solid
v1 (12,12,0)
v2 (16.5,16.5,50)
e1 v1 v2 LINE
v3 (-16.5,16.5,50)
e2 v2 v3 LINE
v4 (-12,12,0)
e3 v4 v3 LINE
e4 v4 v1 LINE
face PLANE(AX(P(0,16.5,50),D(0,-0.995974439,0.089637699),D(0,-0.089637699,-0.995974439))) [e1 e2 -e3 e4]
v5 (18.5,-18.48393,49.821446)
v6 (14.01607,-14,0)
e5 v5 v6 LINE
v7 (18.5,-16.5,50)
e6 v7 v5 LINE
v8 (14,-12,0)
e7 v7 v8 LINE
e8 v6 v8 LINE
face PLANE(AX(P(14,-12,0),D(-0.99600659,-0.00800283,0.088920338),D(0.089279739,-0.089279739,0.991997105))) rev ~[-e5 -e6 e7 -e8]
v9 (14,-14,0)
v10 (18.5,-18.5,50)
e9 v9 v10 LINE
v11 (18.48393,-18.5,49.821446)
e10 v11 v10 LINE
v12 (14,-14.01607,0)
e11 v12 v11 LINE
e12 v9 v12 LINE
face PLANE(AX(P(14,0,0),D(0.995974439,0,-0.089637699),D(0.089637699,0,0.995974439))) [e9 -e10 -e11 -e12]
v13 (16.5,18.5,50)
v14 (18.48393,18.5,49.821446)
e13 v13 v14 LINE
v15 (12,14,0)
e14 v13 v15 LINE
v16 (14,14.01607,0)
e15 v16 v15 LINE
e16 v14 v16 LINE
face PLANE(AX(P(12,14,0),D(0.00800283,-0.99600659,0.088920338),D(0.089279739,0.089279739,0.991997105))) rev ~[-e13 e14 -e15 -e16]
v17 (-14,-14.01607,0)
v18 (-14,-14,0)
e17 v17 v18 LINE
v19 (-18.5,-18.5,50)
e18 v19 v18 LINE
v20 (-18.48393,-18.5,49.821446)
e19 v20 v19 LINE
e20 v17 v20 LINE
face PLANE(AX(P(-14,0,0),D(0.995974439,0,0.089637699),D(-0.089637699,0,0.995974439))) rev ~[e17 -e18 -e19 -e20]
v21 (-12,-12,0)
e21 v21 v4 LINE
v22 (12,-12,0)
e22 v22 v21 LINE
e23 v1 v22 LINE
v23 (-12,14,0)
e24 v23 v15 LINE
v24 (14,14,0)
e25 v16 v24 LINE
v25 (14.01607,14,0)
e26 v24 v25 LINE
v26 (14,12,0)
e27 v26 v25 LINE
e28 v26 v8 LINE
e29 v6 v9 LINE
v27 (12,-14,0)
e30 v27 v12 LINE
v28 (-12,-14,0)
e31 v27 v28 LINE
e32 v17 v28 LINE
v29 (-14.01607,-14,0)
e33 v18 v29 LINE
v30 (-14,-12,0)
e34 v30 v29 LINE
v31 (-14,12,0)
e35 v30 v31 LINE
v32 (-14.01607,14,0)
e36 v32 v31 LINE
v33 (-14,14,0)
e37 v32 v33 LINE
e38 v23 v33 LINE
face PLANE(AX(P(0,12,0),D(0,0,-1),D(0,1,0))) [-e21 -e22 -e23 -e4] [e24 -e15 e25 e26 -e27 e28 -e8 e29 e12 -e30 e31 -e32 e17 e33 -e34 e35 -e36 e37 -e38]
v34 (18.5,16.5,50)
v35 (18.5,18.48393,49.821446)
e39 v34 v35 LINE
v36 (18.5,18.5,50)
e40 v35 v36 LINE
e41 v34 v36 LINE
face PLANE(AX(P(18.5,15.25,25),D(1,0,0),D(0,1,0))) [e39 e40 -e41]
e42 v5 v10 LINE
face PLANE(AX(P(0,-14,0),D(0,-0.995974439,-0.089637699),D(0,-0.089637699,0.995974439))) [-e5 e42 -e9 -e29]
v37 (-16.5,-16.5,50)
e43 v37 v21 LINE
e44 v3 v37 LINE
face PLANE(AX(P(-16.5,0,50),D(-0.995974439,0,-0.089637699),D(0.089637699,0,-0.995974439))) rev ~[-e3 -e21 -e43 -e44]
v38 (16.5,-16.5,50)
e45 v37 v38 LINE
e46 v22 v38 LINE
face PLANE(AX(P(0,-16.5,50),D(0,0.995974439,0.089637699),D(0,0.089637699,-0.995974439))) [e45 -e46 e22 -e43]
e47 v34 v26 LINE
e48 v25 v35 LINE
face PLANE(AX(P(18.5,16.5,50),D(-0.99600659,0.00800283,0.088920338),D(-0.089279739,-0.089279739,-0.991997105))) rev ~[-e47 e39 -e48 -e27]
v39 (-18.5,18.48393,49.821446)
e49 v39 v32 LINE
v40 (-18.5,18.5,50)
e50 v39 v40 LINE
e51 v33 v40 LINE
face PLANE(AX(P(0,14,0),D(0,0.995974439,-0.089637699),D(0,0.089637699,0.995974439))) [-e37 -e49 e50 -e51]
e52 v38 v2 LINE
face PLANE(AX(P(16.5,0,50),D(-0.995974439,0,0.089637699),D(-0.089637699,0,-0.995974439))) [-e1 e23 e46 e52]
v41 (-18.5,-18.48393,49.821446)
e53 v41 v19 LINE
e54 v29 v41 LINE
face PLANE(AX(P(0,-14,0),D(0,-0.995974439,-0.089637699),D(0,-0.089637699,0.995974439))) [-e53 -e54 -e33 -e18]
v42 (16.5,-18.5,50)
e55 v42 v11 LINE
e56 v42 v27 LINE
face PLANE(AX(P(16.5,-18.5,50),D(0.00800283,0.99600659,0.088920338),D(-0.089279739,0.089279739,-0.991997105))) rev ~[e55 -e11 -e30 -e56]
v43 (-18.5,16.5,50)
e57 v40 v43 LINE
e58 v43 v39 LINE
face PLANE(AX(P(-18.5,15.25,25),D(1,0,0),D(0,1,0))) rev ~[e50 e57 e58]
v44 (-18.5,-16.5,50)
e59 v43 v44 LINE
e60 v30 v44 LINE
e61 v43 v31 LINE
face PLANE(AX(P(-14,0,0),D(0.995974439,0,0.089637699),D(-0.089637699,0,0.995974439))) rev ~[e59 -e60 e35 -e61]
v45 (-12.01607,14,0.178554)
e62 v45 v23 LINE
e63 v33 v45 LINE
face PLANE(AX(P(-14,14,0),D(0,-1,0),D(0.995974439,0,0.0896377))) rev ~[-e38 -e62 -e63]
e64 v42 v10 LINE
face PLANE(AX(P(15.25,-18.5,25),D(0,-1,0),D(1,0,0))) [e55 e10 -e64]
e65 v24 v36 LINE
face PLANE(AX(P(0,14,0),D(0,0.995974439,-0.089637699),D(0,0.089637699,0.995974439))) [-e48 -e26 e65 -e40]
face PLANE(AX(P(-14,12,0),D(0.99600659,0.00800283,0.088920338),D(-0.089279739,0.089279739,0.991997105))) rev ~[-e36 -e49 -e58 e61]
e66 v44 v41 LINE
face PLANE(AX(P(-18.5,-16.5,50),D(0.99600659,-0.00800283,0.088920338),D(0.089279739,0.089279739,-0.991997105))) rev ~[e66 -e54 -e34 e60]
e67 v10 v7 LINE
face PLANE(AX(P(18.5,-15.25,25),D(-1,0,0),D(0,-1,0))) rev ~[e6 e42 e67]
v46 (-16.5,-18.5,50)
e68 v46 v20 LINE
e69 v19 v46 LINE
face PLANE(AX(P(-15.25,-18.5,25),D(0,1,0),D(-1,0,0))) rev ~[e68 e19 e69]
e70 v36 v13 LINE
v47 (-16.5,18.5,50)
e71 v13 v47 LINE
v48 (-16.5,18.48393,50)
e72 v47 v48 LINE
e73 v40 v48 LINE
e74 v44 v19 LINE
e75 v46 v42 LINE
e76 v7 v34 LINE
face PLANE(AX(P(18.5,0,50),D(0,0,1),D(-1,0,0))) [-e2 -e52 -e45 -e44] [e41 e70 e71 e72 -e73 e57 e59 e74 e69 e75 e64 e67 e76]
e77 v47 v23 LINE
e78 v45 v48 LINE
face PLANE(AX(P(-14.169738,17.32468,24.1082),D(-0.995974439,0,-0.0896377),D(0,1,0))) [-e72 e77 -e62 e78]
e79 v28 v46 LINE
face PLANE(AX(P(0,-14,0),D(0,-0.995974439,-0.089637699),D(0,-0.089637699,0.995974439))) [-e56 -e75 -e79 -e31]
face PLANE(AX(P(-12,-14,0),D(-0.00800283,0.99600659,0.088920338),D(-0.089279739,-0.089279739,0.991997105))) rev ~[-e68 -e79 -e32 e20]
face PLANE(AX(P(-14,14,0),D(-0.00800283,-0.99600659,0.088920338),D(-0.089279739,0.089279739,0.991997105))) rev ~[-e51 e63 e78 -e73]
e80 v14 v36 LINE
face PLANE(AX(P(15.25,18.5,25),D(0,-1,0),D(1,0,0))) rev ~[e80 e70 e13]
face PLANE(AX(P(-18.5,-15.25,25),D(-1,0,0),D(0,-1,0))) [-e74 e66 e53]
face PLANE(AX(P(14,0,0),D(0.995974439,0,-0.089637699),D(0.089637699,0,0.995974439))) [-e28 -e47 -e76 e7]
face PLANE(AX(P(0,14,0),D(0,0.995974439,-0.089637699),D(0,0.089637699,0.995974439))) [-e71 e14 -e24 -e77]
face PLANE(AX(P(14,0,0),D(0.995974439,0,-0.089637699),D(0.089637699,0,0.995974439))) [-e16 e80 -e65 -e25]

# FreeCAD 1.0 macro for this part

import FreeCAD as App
import Part
import Sketcher

V = App.Vector

doc = App.newDocument("Part")
body = doc.addObject("PartDesign::Body", "Body")

sketch1 = body.newObject("Sketcher::SketchObject", "Sketch")
sketch1.AttachmentSupport = (doc.getObject("XZ_Plane"), [""])
sketch1.MapMode = "FlatFace"
sketch1.addGeometry(Part.LineSegment(V(-12, 0, 0), V(-16.5, 50, 0)), False)
sketch1.addGeometry(Part.LineSegment(V(-16.5, 50, 0), V(-18.5, 50, 0)), False)
sketch1.addGeometry(Part.LineSegment(V(-18.5, 50, 0), V(-14, 0, 0)), False)
sketch1.addGeometry(Part.LineSegment(V(-14, 0, 0), V(-12, 0, 0)), False)
sketch1.addConstraint(Sketcher.Constraint("Coincident", 0, 2, 1, 1))
sketch1.addConstraint(Sketcher.Constraint("Coincident", 1, 2, 2, 1))
sketch1.addConstraint(Sketcher.Constraint("Coincident", 2, 2, 3, 1))
sketch1.addConstraint(Sketcher.Constraint("Coincident", 3, 2, 0, 1))
sketch1.addConstraint(Sketcher.Constraint("Horizontal", 1))
sketch1.addConstraint(Sketcher.Constraint("Horizontal", 3))
sketch1.addConstraint(Sketcher.Constraint("PointOnObject", 2, 2, -1))
sketch1.addConstraint(Sketcher.Constraint("Parallel", 0, 2))
sketch1.addConstraint(Sketcher.Constraint("DistanceX", 1, 2, 1, 1, 2.0))
sketch1.addConstraint(Sketcher.Constraint("DistanceY", -1, 1, 0, 2, 50.0))
sketch1.addConstraint(Sketcher.Constraint("DistanceX", 2, 2, -1, 1, 14.0))
sketch1.addConstraint(Sketcher.Constraint("DistanceX", 0, 2, -1, 1, 16.5))
pad1 = body.newObject("PartDesign::Pad", "Pad")
pad1.Profile = sketch1
pad1.Type = "TwoLengths"
pad1.Length = 18.5
pad1.Length2 = 18.5
doc.recompute()

polarpattern = body.newObject("PartDesign::PolarPattern", "PolarPattern")
polarpattern.Originals = [pad1]
polarpattern.Axis = (doc.getObject("Z_Axis"), [""])
polarpattern.Angle = 360
polarpattern.Occurrences = 4
body.Tip = polarpattern

sketch2 = body.newObject("Sketcher::SketchObject", "Sketch001")
sketch2.Placement = App.Placement(V(-13.5, -17, 16.666667), App.Rotation(V(0, -1, 0), V(0.0896377, 0, -0.995974439), V(0.995974439, 0, 0.0896377), "ZXY"))
sketch2.addGeometry(Part.LineSegment(V(-3, 16.7, 0), V(1.5, -33.5, 0)), False)
sketch2.addGeometry(Part.LineSegment(V(1.5, -33.5, 0), V(1.5, 16.7, 0)), False)
sketch2.addGeometry(Part.LineSegment(V(1.5, 16.7, 0), V(-3, 16.7, 0)), False)
sketch2.addConstraint(Sketcher.Constraint("Coincident", 0, 2, 1, 1))
sketch2.addConstraint(Sketcher.Constraint("Coincident", 1, 2, 2, 1))
sketch2.addConstraint(Sketcher.Constraint("Coincident", 2, 2, 0, 1))
sketch2.addConstraint(Sketcher.Constraint("Vertical", 1))
sketch2.addConstraint(Sketcher.Constraint("Horizontal", 2))
sketch2.addConstraint(Sketcher.Constraint("DistanceX", 2, 2, 2, 1, 4.5))
sketch2.addConstraint(Sketcher.Constraint("DistanceX", 2, 2, -1, 1, 3.0))
sketch2.addConstraint(Sketcher.Constraint("DistanceY", 1, 1, 1, 2, 50.202092))
sketch2.addConstraint(Sketcher.Constraint("DistanceY", 0, 2, -1, 1, 33.468061))
pocket1 = body.newObject("PartDesign::Pocket", "Pocket")
pocket1.Profile = sketch2
pocket1.Type = "ThroughAll"

sketch3 = body.newObject("Sketcher::SketchObject", "Sketch002")
sketch3.Placement = App.Placement(V(-17, -13.5, 16.666667), App.Rotation(V(1, 0, 0), V(0, 0.0896377, -0.995974439), V(0, 0.995974439, 0.0896377), "ZXY"))
sketch3.addGeometry(Part.LineSegment(V(-1.5, 16.7, 0), V(-1.5, -33.5, 0)), False)
sketch3.addGeometry(Part.LineSegment(V(-1.5, -33.5, 0), V(3, 16.7, 0)), False)
sketch3.addGeometry(Part.LineSegment(V(3, 16.7, 0), V(-1.5, 16.7, 0)), False)
sketch3.addConstraint(Sketcher.Constraint("Coincident", 0, 2, 1, 1))
sketch3.addConstraint(Sketcher.Constraint("Coincident", 1, 2, 2, 1))
sketch3.addConstraint(Sketcher.Constraint("Coincident", 2, 2, 0, 1))
sketch3.addConstraint(Sketcher.Constraint("Vertical", 0))
sketch3.addConstraint(Sketcher.Constraint("Horizontal", 2))
sketch3.addConstraint(Sketcher.Constraint("DistanceX", 2, 2, 2, 1, 4.5))
sketch3.addConstraint(Sketcher.Constraint("DistanceX", -1, 1, 1, 2, 3.0))
sketch3.addConstraint(Sketcher.Constraint("DistanceY", 0, 2, 0, 1, 50.202092))
sketch3.addConstraint(Sketcher.Constraint("DistanceY", 0, 2, -1, 1, 33.468061))
pocket2 = body.newObject("PartDesign::Pocket", "Pocket001")
pocket2.Profile = sketch3
pocket2.Type = "ThroughAll"

sketch4 = body.newObject("Sketcher::SketchObject", "Sketch003")
sketch4.Placement = App.Placement(V(-15.5, 17, 16.666667), App.Rotation(V(0, 1, 0), V(0.0896377, 0, -0.995974439), V(-0.995974439, 0, -0.0896377), "ZXY"))
sketch4.addGeometry(Part.LineSegment(V(1.5, -33.5, 0), V(1.5, 16.7, 0)), False)
sketch4.addGeometry(Part.LineSegment(V(1.5, 16.7, 0), V(-3, 16.7, 0)), False)
sketch4.addGeometry(Part.LineSegment(V(-3, 16.7, 0), V(1.5, -33.5, 0)), False)
sketch4.addConstraint(Sketcher.Constraint("Coincident", 0, 2, 1, 1))
sketch4.addConstraint(Sketcher.Constraint("Coincident", 1, 2, 2, 1))
sketch4.addConstraint(Sketcher.Constraint("Coincident", 2, 2, 0, 1))
sketch4.addConstraint(Sketcher.Constraint("Vertical", 0))
sketch4.addConstraint(Sketcher.Constraint("Horizontal", 1))
sketch4.addConstraint(Sketcher.Constraint("DistanceX", 1, 2, 1, 1, 4.5))
sketch4.addConstraint(Sketcher.Constraint("DistanceX", 1, 2, -1, 1, 3.0))
sketch4.addConstraint(Sketcher.Constraint("DistanceY", 0, 1, 0, 2, 50.202092))
sketch4.addConstraint(Sketcher.Constraint("DistanceY", -1, 1, 0, 2, 16.734031))
pocket3 = body.newObject("PartDesign::Pocket", "Pocket002")
pocket3.Profile = sketch4
pocket3.Length = 1.991949

sketch5 = body.newObject("Sketcher::SketchObject", "Sketch004")
sketch5.Placement = App.Placement(V(-17, 13.5, 16.666667), App.Rotation(V(-1, 0, 0), V(0, -0.0896377, -0.995974439), V(0, -0.995974439, 0.0896377), "ZXY"))
sketch5.addGeometry(Part.LineSegment(V(-3, 16.7, 0), V(1.5, -33.5, 0)), False)
sketch5.addGeometry(Part.LineSegment(V(1.5, -33.5, 0), V(1.5, 16.7, 0)), False)
sketch5.addGeometry(Part.LineSegment(V(1.5, 16.7, 0), V(-3, 16.7, 0)), False)
sketch5.addConstraint(Sketcher.Constraint("Coincident", 0, 2, 1, 1))
sketch5.addConstraint(Sketcher.Constraint("Coincident", 1, 2, 2, 1))
sketch5.addConstraint(Sketcher.Constraint("Coincident", 2, 2, 0, 1))
sketch5.addConstraint(Sketcher.Constraint("Vertical", 1))
sketch5.addConstraint(Sketcher.Constraint("Horizontal", 2))
sketch5.addConstraint(Sketcher.Constraint("DistanceX", 2, 2, 2, 1, 4.5))
sketch5.addConstraint(Sketcher.Constraint("DistanceX", 2, 2, -1, 1, 3.0))
sketch5.addConstraint(Sketcher.Constraint("DistanceY", 1, 1, 1, 2, 50.202092))
sketch5.addConstraint(Sketcher.Constraint("DistanceY", 0, 2, -1, 1, 33.468061))
pocket4 = body.newObject("PartDesign::Pocket", "Pocket003")
pocket4.Profile = sketch5
pocket4.Length = 5

sketch6 = body.newObject("Sketcher::SketchObject", "Sketch005")
sketch6.Placement = App.Placement(V(13.5, -17, 16.666667), App.Rotation(V(0, 1, 0), V(-0.0896377, 0, -0.995974439), V(-0.995974439, 0, 0.0896377), "ZXY"))
sketch6.addGeometry(Part.LineSegment(V(-1.5, 16.7, 0), V(-1.5, -33.5, 0)), False)
sketch6.addGeometry(Part.LineSegment(V(-1.5, -33.5, 0), V(3, 16.7, 0)), False)
sketch6.addGeometry(Part.LineSegment(V(3, 16.7, 0), V(-1.5, 16.7, 0)), False)
sketch6.addConstraint(Sketcher.Constraint("Coincident", 0, 2, 1, 1))
sketch6.addConstraint(Sketcher.Constraint("Coincident", 1, 2, 2, 1))
sketch6.addConstraint(Sketcher.Constraint("Coincident", 2, 2, 0, 1))
sketch6.addConstraint(Sketcher.Constraint("Vertical", 0))
sketch6.addConstraint(Sketcher.Constraint("Horizontal", 2))
sketch6.addConstraint(Sketcher.Constraint("DistanceX", 2, 2, 2, 1, 4.5))
sketch6.addConstraint(Sketcher.Constraint("DistanceX", -1, 1, 1, 2, 3.0))
sketch6.addConstraint(Sketcher.Constraint("DistanceY", 0, 2, 0, 1, 50.202092))
sketch6.addConstraint(Sketcher.Constraint("DistanceY", 0, 2, -1, 1, 33.468061))
pocket5 = body.newObject("PartDesign::Pocket", "Pocket004")
pocket5.Profile = sketch6
pocket5.Length = 5

sketch7 = body.newObject("Sketcher::SketchObject", "Sketch006")
sketch7.Placement = App.Placement(V(13.5, 17, 16.666667), App.Rotation(V(0, 1, 0), V(-0.0896377, 0, -0.995974439), V(-0.995974439, 0, 0.0896377), "ZXY"))
sketch7.addGeometry(Part.LineSegment(V(-3, 16.7, 0), V(1.5, -33.5, 0)), False)
sketch7.addGeometry(Part.LineSegment(V(1.5, -33.5, 0), V(1.5, 16.7, 0)), False)
sketch7.addGeometry(Part.LineSegment(V(1.5, 16.7, 0), V(-3, 16.7, 0)), False)
sketch7.addConstraint(Sketcher.Constraint("Coincident", 0, 2, 1, 1))
sketch7.addConstraint(Sketcher.Constraint("Coincident", 1, 2, 2, 1))
sketch7.addConstraint(Sketcher.Constraint("Coincident", 2, 2, 0, 1))
sketch7.addConstraint(Sketcher.Constraint("Vertical", 1))
sketch7.addConstraint(Sketcher.Constraint("Horizontal", 2))
sketch7.addConstraint(Sketcher.Constraint("DistanceX", 2, 2, 2, 1, 4.5))
sketch7.addConstraint(Sketcher.Constraint("DistanceX", 2, 2, -1, 1, 3.0))
sketch7.addConstraint(Sketcher.Constraint("DistanceY", 1, 1, 1, 2, 50.202092))
sketch7.addConstraint(Sketcher.Constraint("DistanceY", 0, 2, -1, 1, 33.468061))
pocket6 = body.newObject("PartDesign::Pocket", "Pocket005")
pocket6.Profile = sketch7
pocket6.Length = 5

sketch8 = body.newObject("Sketcher::SketchObject", "Sketch007")
sketch8.Placement = App.Placement(V(17, 13.5, 16.666667), App.Rotation(V(-1, 0, 0), V(0, -0.0896377, -0.995974439), V(0, -0.995974439, 0.0896377), "ZXY"))
sketch8.addGeometry(Part.LineSegment(V(-1.5, 16.7, 0), V(-1.5, -33.5, 0)), False)
sketch8.addGeometry(Part.LineSegment(V(-1.5, -33.5, 0), V(3, 16.7, 0)), False)
sketch8.addGeometry(Part.LineSegment(V(3, 16.7, 0), V(-1.5, 16.7, 0)), False)
sketch8.addConstraint(Sketcher.Constraint("Coincident", 0, 2, 1, 1))
sketch8.addConstraint(Sketcher.Constraint("Coincident", 1, 2, 2, 1))
sketch8.addConstraint(Sketcher.Constraint("Coincident", 2, 2, 0, 1))
sketch8.addConstraint(Sketcher.Constraint("Vertical", 0))
sketch8.addConstraint(Sketcher.Constraint("Horizontal", 2))
sketch8.addConstraint(Sketcher.Constraint("DistanceX", 2, 2, 2, 1, 4.5))
sketch8.addConstraint(Sketcher.Constraint("DistanceX", -1, 1, 1, 2, 3.0))
sketch8.addConstraint(Sketcher.Constraint("DistanceY", 0, 2, 0, 1, 50.202092))
sketch8.addConstraint(Sketcher.Constraint("DistanceY", 0, 2, -1, 1, 33.468061))
pocket7 = body.newObject("PartDesign::Pocket", "Pocket006")
pocket7.Profile = sketch8
pocket7.Length = 5

sketch9 = body.newObject("Sketcher::SketchObject", "Sketch008")
sketch9.Placement = App.Placement(V(17, -13.5, 16.666667), App.Rotation(V(1, 0, 0), V(0, 0.0896377, -0.995974439), V(0, 0.995974439, 0.0896377), "ZXY"))
sketch9.addGeometry(Part.LineSegment(V(-3, 16.7, 0), V(1.5, -33.5, 0)), False)
sketch9.addGeometry(Part.LineSegment(V(1.5, -33.5, 0), V(1.5, 16.7, 0)), False)
sketch9.addGeometry(Part.LineSegment(V(1.5, 16.7, 0), V(-3, 16.7, 0)), False)
sketch9.addConstraint(Sketcher.Constraint("Coincident", 0, 2, 1, 1))
sketch9.addConstraint(Sketcher.Constraint("Coincident", 1, 2, 2, 1))
sketch9.addConstraint(Sketcher.Constraint("Coincident", 2, 2, 0, 1))
sketch9.addConstraint(Sketcher.Constraint("Vertical", 1))
sketch9.addConstraint(Sketcher.Constraint("Horizontal", 2))
sketch9.addConstraint(Sketcher.Constraint("DistanceX", 2, 2, 2, 1, 4.5))
sketch9.addConstraint(Sketcher.Constraint("DistanceX", 2, 2, -1, 1, 3.0))
sketch9.addConstraint(Sketcher.Constraint("DistanceY", 1, 1, 1, 2, 50.202092))
sketch9.addConstraint(Sketcher.Constraint("DistanceY", 0, 2, -1, 1, 33.468061))
pocket8 = body.newObject("PartDesign::Pocket", "Pocket007")
pocket8.Profile = sketch9
pocket8.Length = 5

sketch10 = body.newObject("Sketcher::SketchObject", "Sketch009")
sketch10.Placement = App.Placement(V(-13.008035, 16.25, 0.089277), App.Rotation(V(0, 1, 0), V(-0.995974439, 0, -0.0896377), V(-0.0896377, 0, 0.995974439), "ZXY"))
sketch10.addGeometry(Part.LineSegment(V(2.2, 1, 0), V(-2.2, 1, 0)), False)
sketch10.addGeometry(Part.LineSegment(V(-2.2, 1, 0), V(-2.2, -1, 0)), False)
sketch10.addGeometry(Part.LineSegment(V(-2.2, -1, 0), V(2.2, -1, 0)), False)
sketch10.addGeometry(Part.LineSegment(V(2.2, -1, 0), V(2.2, 1, 0)), False)
sketch10.addConstraint(Sketcher.Constraint("Coincident", 0, 2, 1, 1))
sketch10.addConstraint(Sketcher.Constraint("Coincident", 1, 2, 2, 1))
sketch10.addConstraint(Sketcher.Constraint("Coincident", 2, 2, 3, 1))
sketch10.addConstraint(Sketcher.Constraint("Coincident", 3, 2, 0, 1))
sketch10.addConstraint(Sketcher.Constraint("Horizontal", 0))
sketch10.addConstraint(Sketcher.Constraint("Vertical", 1))
sketch10.addConstraint(Sketcher.Constraint("Horizontal", 2))
sketch10.addConstraint(Sketcher.Constraint("Vertical", 3))
sketch10.addConstraint(Sketcher.Constraint("Symmetric", 0, 2, 2, 2, -1, 1))
sketch10.addConstraint(Sketcher.Constraint("DistanceX", 0, 2, 0, 1, 4.5))
sketch10.addConstraint(Sketcher.Constraint("DistanceY", 1, 2, 1, 1, 1.991949))
pocket9 = body.newObject("PartDesign::Pocket", "Pocket008")
pocket9.Profile = sketch10
pocket9.Length = 5

doc.recompute()
